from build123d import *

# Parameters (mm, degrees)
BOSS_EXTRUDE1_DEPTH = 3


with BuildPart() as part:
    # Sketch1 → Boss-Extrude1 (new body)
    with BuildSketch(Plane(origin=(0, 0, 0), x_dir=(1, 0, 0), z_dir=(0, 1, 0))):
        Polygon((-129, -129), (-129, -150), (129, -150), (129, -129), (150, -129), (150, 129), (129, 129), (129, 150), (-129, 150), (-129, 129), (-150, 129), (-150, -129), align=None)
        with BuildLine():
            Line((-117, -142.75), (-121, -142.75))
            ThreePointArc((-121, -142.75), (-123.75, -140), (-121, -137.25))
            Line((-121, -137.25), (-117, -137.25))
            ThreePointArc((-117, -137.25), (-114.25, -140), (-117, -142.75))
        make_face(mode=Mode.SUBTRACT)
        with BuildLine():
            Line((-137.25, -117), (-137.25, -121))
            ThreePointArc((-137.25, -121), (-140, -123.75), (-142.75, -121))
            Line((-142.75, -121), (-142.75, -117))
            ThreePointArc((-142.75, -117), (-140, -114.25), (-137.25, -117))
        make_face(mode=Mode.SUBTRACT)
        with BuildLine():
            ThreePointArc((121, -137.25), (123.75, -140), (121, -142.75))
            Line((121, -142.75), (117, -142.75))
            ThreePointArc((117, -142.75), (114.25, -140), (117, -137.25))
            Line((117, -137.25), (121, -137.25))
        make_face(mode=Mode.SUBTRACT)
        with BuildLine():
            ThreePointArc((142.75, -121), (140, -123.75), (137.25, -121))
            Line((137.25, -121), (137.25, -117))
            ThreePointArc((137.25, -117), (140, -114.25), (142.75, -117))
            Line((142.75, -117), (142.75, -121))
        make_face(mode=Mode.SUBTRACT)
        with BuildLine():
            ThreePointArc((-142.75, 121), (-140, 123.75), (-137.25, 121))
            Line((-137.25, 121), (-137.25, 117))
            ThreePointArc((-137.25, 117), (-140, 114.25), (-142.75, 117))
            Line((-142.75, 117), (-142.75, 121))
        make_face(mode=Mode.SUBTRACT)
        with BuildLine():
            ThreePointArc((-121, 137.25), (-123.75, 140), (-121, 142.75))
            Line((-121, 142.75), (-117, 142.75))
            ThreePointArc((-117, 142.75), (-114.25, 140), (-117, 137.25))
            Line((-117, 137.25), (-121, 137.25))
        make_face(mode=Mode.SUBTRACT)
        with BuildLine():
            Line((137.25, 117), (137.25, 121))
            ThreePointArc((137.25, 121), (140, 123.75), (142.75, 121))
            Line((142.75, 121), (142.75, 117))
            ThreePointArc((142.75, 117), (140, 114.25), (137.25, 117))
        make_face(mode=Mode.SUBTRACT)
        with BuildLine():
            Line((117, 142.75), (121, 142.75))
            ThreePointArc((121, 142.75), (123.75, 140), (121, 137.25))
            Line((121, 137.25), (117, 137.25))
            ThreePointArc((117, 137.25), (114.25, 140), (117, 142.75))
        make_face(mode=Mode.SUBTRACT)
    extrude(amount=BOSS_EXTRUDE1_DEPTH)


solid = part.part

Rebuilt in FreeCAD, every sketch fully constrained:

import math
import FreeCAD as App
import Part
import Sketcher

V = App.Vector
Q = App.Units.Quantity


def add_polygon(sketch, points):
    """Adds a closed chain of lines whose ends are joined by coincident constraints."""
    first, n = sketch.GeometryCount, len(points)
    for a, b in zip(points, points[1:] + points[:1]):
        sketch.addGeometry(Part.LineSegment(App.Vector(*a, 0), App.Vector(*b, 0)), False)
    for i in range(n):
        sketch.addConstraint(Sketcher.Constraint("Coincident", first + i, 2, first + (i + 1) % n, 1))

doc = App.newDocument("Part")
body = doc.addObject("PartDesign::Body", "Body")

# Sketch on XZ plane
sketch1 = doc.addObject("Sketcher::SketchObject", "Sketch")
body.addObject(sketch1)
sketch1.AttachmentSupport = (doc.XZ_Plane, [""])
sketch1.MapMode = "FlatFace"
add_polygon(sketch1, [(-129, 129), (-129, 150), (129, 150), (129, 129), (150, 129), (150, -129), (129, -129), (129, -150), (-129, -150), (-129, -129), (-150, -129), (-150, 129)])  # lines 0-11
sketch1.addGeometry(Part.ArcOfCircle(Part.Circle(V(-117, 140, 0), V(0, 0, 1), 2.8), math.radians(-90), math.radians(90)), False)  # 12
sketch1.addGeometry(Part.LineSegment(V(-117, 142.8, 0), V(-121, 142.8, 0)), False)  # 13
sketch1.addGeometry(Part.ArcOfCircle(Part.Circle(V(-121, 140, 0), V(0, 0, 1), 2.8), math.radians(90), math.radians(270)), False)  # 14
sketch1.addGeometry(Part.LineSegment(V(-121, 137.2, 0), V(-117, 137.2, 0)), False)  # 15
sketch1.addGeometry(Part.ArcOfCircle(Part.Circle(V(-140, 117, 0), V(0, 0, 1), 2.8), math.radians(180), math.radians(360)), False)  # 16
sketch1.addGeometry(Part.LineSegment(V(-137.2, 117, 0), V(-137.2, 121, 0)), False)  # 17
sketch1.addGeometry(Part.ArcOfCircle(Part.Circle(V(-140, 121, 0), V(0, 0, 1), 2.8), math.radians(0), math.radians(180)), False)  # 18
sketch1.addGeometry(Part.LineSegment(V(-142.8, 121, 0), V(-142.8, 117, 0)), False)  # 19
sketch1.addGeometry(Part.LineSegment(V(117, 137.2, 0), V(121, 137.2, 0)), False)  # 20
sketch1.addGeometry(Part.ArcOfCircle(Part.Circle(V(121, 140, 0), V(0, 0, 1), 2.8), math.radians(-90), math.radians(90)), False)  # 21
sketch1.addGeometry(Part.LineSegment(V(121, 142.8, 0), V(117, 142.8, 0)), False)  # 22
sketch1.addGeometry(Part.ArcOfCircle(Part.Circle(V(117, 140, 0), V(0, 0, 1), 2.8), math.radians(90), math.radians(270)), False)  # 23
sketch1.addGeometry(Part.LineSegment(V(142.8, 117, 0), V(142.8, 121, 0)), False)  # 24
sketch1.addGeometry(Part.ArcOfCircle(Part.Circle(V(140, 121, 0), V(0, 0, 1), 2.8), math.radians(0), math.radians(180)), False)  # 25
sketch1.addGeometry(Part.LineSegment(V(137.2, 121, 0), V(137.2, 117, 0)), False)  # 26
sketch1.addGeometry(Part.ArcOfCircle(Part.Circle(V(140, 117, 0), V(0, 0, 1), 2.8), math.radians(180), math.radians(360)), False)  # 27
sketch1.addGeometry(Part.LineSegment(V(-142.8, -117, 0), V(-142.8, -121, 0)), False)  # 28
sketch1.addGeometry(Part.ArcOfCircle(Part.Circle(V(-140, -121, 0), V(0, 0, 1), 2.8), math.radians(180), math.radians(360)), False)  # 29
sketch1.addGeometry(Part.LineSegment(V(-137.2, -121, 0), V(-137.2, -117, 0)), False)  # 30
sketch1.addGeometry(Part.ArcOfCircle(Part.Circle(V(-140, -117, 0), V(0, 0, 1), 2.8), math.radians(0), math.radians(180)), False)  # 31
sketch1.addGeometry(Part.LineSegment(V(-117, -137.2, 0), V(-121, -137.2, 0)), False)  # 32
sketch1.addGeometry(Part.ArcOfCircle(Part.Circle(V(-121, -140, 0), V(0, 0, 1), 2.8), math.radians(90), math.radians(270)), False)  # 33
sketch1.addGeometry(Part.LineSegment(V(-121, -142.8, 0), V(-117, -142.8, 0)), False)  # 34
sketch1.addGeometry(Part.ArcOfCircle(Part.Circle(V(-117, -140, 0), V(0, 0, 1), 2.8), math.radians(-90), math.radians(90)), False)  # 35
sketch1.addGeometry(Part.ArcOfCircle(Part.Circle(V(140, -117, 0), V(0, 0, 1), 2.8), math.radians(0), math.radians(180)), False)  # 36
sketch1.addGeometry(Part.LineSegment(V(137.2, -117, 0), V(137.2, -121, 0)), False)  # 37
sketch1.addGeometry(Part.ArcOfCircle(Part.Circle(V(140, -121, 0), V(0, 0, 1), 2.8), math.radians(180), math.radians(360)), False)  # 38
sketch1.addGeometry(Part.LineSegment(V(142.8, -121, 0), V(142.8, -117, 0)), False)  # 39
sketch1.addGeometry(Part.ArcOfCircle(Part.Circle(V(117, -140, 0), V(0, 0, 1), 2.8), math.radians(90), math.radians(270)), False)  # 40
sketch1.addGeometry(Part.LineSegment(V(117, -142.8, 0), V(121, -142.8, 0)), False)  # 41
sketch1.addGeometry(Part.ArcOfCircle(Part.Circle(V(121, -140, 0), V(0, 0, 1), 2.8), math.radians(-90), math.radians(90)), False)  # 42
sketch1.addGeometry(Part.LineSegment(V(121, -137.2, 0), V(117, -137.2, 0)), False)  # 43
sketch1.addConstraint([
    Sketcher.Constraint("Tangent", 12, 2, 13, 1),
    Sketcher.Constraint("Tangent", 13, 2, 14, 1),
    Sketcher.Constraint("Tangent", 14, 2, 15, 1),
    Sketcher.Constraint("Tangent", 15, 2, 12, 1),
    Sketcher.Constraint("Tangent", 16, 2, 17, 1),
    Sketcher.Constraint("Tangent", 17, 2, 18, 1),
    Sketcher.Constraint("Tangent", 18, 2, 19, 1),
    Sketcher.Constraint("Tangent", 19, 2, 16, 1),
    Sketcher.Constraint("Tangent", 20, 2, 21, 1),
    Sketcher.Constraint("Tangent", 21, 2, 22, 1),
    Sketcher.Constraint("Tangent", 22, 2, 23, 1),
    Sketcher.Constraint("Tangent", 23, 2, 20, 1),
    Sketcher.Constraint("Tangent", 24, 2, 25, 1),
    Sketcher.Constraint("Tangent", 25, 2, 26, 1),
    Sketcher.Constraint("Tangent", 26, 2, 27, 1),
    Sketcher.Constraint("Tangent", 27, 2, 24, 1),
    Sketcher.Constraint("Tangent", 28, 2, 29, 1),
    Sketcher.Constraint("Tangent", 29, 2, 30, 1),
    Sketcher.Constraint("Tangent", 30, 2, 31, 1),
    Sketcher.Constraint("Tangent", 31, 2, 28, 1),
    Sketcher.Constraint("Tangent", 32, 2, 33, 1),
    Sketcher.Constraint("Tangent", 33, 2, 34, 1),
    Sketcher.Constraint("Tangent", 34, 2, 35, 1),
    Sketcher.Constraint("Tangent", 35, 2, 32, 1),
    Sketcher.Constraint("Tangent", 36, 2, 37, 1),
    Sketcher.Constraint("Tangent", 37, 2, 38, 1),
    Sketcher.Constraint("Tangent", 38, 2, 39, 1),
    Sketcher.Constraint("Tangent", 39, 2, 36, 1),
    Sketcher.Constraint("Tangent", 40, 2, 41, 1),
    Sketcher.Constraint("Tangent", 41, 2, 42, 1),
    Sketcher.Constraint("Tangent", 42, 2, 43, 1),
    Sketcher.Constraint("Tangent", 43, 2, 40, 1),
    Sketcher.Constraint("Vertical", 0),
    Sketcher.Constraint("Horizontal", 1),
    Sketcher.Constraint("Vertical", 2),
    Sketcher.Constraint("Horizontal", 3),
    Sketcher.Constraint("Vertical", 4),
    Sketcher.Constraint("Horizontal", 5),
    Sketcher.Constraint("Vertical", 6),
    Sketcher.Constraint("Horizontal", 7),
    Sketcher.Constraint("Vertical", 8),
    Sketcher.Constraint("Horizontal", 9),
    Sketcher.Constraint("Vertical", 10),
    Sketcher.Constraint("Horizontal", 11),
    Sketcher.Constraint("Horizontal", 13),
    Sketcher.Constraint("Horizontal", 15),
    Sketcher.Constraint("Vertical", 17),
    Sketcher.Constraint("Vertical", 19),
    Sketcher.Constraint("Horizontal", 20),
    Sketcher.Constraint("Horizontal", 22),
    Sketcher.Constraint("Vertical", 24),
    Sketcher.Constraint("Vertical", 26),
    Sketcher.Constraint("Vertical", 28),
    Sketcher.Constraint("Vertical", 30),
    Sketcher.Constraint("Horizontal", 32),
    Sketcher.Constraint("Horizontal", 34),
    Sketcher.Constraint("Vertical", 37),
    Sketcher.Constraint("Vertical", 39),
    Sketcher.Constraint("Horizontal", 41),
    Sketcher.Constraint("Horizontal", 43),
    Sketcher.Constraint("Equal", 14, 16),
    Sketcher.Constraint("Equal", 18, 21),
    Sketcher.Constraint("Equal", 23, 25),
    Sketcher.Constraint("Equal", 27, 29),
    Sketcher.Constraint("Equal", 31, 33),
    Sketcher.Constraint("Equal", 35, 36),
    Sketcher.Constraint("Equal", 38, 40),
    Sketcher.Constraint("Symmetric", 25, 3, 29, 3, -1, 1),
    Sketcher.Constraint("Symmetric", 21, 3, 33, 3, -1, 1),
    Sketcher.Constraint("Symmetric", 16, 3, 36, 3, -1, 1),
    Sketcher.Constraint("Symmetric", 12, 3, 40, 3, -1, 1),
    Sketcher.Constraint("Symmetric", 0, 2, 6, 2, -1, 1),
    Sketcher.Constraint("Symmetric", 2, 2, 8, 2, -1, 1),
    Sketcher.Constraint("Symmetric", 4, 2, 10, 2, -1, 1),
    Sketcher.Constraint("Symmetric", 14, 3, 21, 3, -2),
    Sketcher.Constraint("Symmetric", 18, 3, 25, 3, -2),
    Sketcher.Constraint("Symmetric", 5, 2, 8, 2, -2),
    Sketcher.Constraint("Horizontal", 16, 3, 27, 3),
    Sketcher.Constraint("Horizontal", 31, 3, 36, 3),
    Sketcher.Constraint("Horizontal", 29, 3, 38, 3),
    Sketcher.Constraint("Vertical", 12, 3, 35, 3),
    Sketcher.Constraint("Vertical", 23, 3, 40, 3),
    Sketcher.Constraint("Vertical", 21, 3, 42, 3),
    Sketcher.Constraint("Equal", 11, 0),
    Sketcher.Constraint("Equal", 7, 4),
    Sketcher.Constraint("Equal", 43, 17),
    Sketcher.Constraint("DistanceX", 1, 1, 1, 2, Q("258 mm")),
    Sketcher.Constraint("DistanceX", 3, 1, 3, 2, Q("21 mm")),
    Sketcher.Constraint("DistanceX", 13, 2, 13, 1, Q("4 mm")),
    Sketcher.Constraint("Radius", 12, Q("2.75 mm")),
    Sketcher.Constraint("DistanceX", 12, 3, -1, 1, Q("117 mm")),
    Sketcher.Constraint("DistanceY", -1, 1, 12, 3, Q("140 mm")),
    Sketcher.Constraint("DistanceX", 16, 3, -1, 1, Q("140 mm")),
    Sketcher.Constraint("DistanceY", -1, 1, 16, 3, Q("117 mm")),
])
pad1 = doc.addObject("PartDesign::Pad", "Pad")
body.addObject(pad1)
pad1.Profile = sketch1
pad1.Length = 3
pad1.Reversed = True

doc.recompute()
